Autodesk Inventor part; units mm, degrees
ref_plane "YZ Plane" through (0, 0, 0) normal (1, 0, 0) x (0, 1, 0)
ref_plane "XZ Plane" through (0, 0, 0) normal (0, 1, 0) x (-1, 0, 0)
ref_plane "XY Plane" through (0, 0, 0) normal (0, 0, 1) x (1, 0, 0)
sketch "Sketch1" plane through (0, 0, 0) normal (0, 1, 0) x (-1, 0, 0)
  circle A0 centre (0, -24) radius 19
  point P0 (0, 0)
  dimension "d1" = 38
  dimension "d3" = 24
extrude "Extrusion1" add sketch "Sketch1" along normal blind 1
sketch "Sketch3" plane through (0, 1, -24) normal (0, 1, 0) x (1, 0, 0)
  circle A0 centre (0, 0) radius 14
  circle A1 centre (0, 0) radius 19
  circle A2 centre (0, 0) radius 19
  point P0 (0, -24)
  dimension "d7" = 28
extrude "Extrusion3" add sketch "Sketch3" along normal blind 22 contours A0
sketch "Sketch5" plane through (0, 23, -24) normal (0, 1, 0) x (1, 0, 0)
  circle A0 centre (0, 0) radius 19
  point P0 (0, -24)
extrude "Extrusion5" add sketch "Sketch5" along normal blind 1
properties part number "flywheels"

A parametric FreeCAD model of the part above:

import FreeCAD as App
import Part
import Sketcher
from FreeCAD import Vector

doc = App.newDocument("Part")
params = doc.addObject("Spreadsheet::Sheet", "Params")
for row, (alias, value) in enumerate([
    ("sketch1_diameter", "38 mm"),
    ("pad1_length", "1 mm"),
    ("sketch2_diameter", "28 mm"),
    ("pad2_length", "22 mm"),
    ("sketch3_diameter", "38 mm"),
    ("pad3_length", "1 mm"),
], start=1):
    params.set(f"A{row}", alias)
    params.set(f"B{row}", "=" + value)
    params.setAlias(f"B{row}", alias)

body = doc.addObject("PartDesign::Body", "Body")

# Sketch on XZ plane
sketch1 = body.newObject("Sketcher::SketchObject", "Sketch")
sketch1.AttachmentSupport = (doc.getObject("XZ_Plane"), [""])
sketch1.MapMode = "FlatFace"
sketch1.addGeometry(Part.Circle(Vector(0, -24, 0), Vector(0, 0, 1), 19), False)
sketch1.addConstraint(Sketcher.Constraint("PointOnObject", 0, 3, -2))
sketch1.addConstraint(Sketcher.Constraint("Diameter", 0, 38.0))
sketch1.addConstraint(Sketcher.Constraint("DistanceY", 0, 3, -1, 1, 24.0))
sketch1.setExpression("Constraints[1]", "Params.sketch1_diameter")
pad1 = body.newObject("PartDesign::Pad", "Pad")
pad1.Profile = sketch1
pad1.setExpression("Length", "Params.pad1_length")
pad1.Reversed = True

# Sketch on XZ plane
sketch2 = body.newObject("Sketcher::SketchObject", "Sketch001")
sketch2.AttachmentSupport = (doc.getObject("XZ_Plane"), [""])
sketch2.MapMode = "FlatFace"
sketch2.AttachmentOffset = App.Placement(Vector(0, 0, -1), App.Rotation())
sketch2.addGeometry(Part.Circle(Vector(0, -24, 0), Vector(0, 0, 1), 14), False)
sketch2.addConstraint(Sketcher.Constraint("PointOnObject", 0, 3, -2))
sketch2.addConstraint(Sketcher.Constraint("Diameter", 0, 28.0))
sketch2.addConstraint(Sketcher.Constraint("DistanceY", 0, 3, -1, 1, 24.0))
sketch2.setExpression("Constraints[1]", "Params.sketch2_diameter")
pad2 = body.newObject("PartDesign::Pad", "Pad001")
pad2.Profile = sketch2
pad2.setExpression("Length", "Params.pad2_length")
pad2.Reversed = True

# Sketch on XZ plane
sketch3 = body.newObject("Sketcher::SketchObject", "Sketch002")
sketch3.AttachmentSupport = (doc.getObject("XZ_Plane"), [""])
sketch3.MapMode = "FlatFace"
sketch3.AttachmentOffset = App.Placement(Vector(0, 0, -23), App.Rotation())
sketch3.addGeometry(Part.Circle(Vector(0, -24, 0), Vector(0, 0, 1), 19), False)
sketch3.addConstraint(Sketcher.Constraint("PointOnObject", 0, 3, -2))
sketch3.addConstraint(Sketcher.Constraint("Diameter", 0, 38.0))
sketch3.addConstraint(Sketcher.Constraint("DistanceY", 0, 3, -1, 1, 24.0))
sketch3.setExpression("Constraints[1]", "Params.sketch3_diameter")
pad3 = body.newObject("PartDesign::Pad", "Pad002")
pad3.Profile = sketch3
pad3.setExpression("Length", "Params.pad3_length")
pad3.Reversed = True

doc.recompute()
